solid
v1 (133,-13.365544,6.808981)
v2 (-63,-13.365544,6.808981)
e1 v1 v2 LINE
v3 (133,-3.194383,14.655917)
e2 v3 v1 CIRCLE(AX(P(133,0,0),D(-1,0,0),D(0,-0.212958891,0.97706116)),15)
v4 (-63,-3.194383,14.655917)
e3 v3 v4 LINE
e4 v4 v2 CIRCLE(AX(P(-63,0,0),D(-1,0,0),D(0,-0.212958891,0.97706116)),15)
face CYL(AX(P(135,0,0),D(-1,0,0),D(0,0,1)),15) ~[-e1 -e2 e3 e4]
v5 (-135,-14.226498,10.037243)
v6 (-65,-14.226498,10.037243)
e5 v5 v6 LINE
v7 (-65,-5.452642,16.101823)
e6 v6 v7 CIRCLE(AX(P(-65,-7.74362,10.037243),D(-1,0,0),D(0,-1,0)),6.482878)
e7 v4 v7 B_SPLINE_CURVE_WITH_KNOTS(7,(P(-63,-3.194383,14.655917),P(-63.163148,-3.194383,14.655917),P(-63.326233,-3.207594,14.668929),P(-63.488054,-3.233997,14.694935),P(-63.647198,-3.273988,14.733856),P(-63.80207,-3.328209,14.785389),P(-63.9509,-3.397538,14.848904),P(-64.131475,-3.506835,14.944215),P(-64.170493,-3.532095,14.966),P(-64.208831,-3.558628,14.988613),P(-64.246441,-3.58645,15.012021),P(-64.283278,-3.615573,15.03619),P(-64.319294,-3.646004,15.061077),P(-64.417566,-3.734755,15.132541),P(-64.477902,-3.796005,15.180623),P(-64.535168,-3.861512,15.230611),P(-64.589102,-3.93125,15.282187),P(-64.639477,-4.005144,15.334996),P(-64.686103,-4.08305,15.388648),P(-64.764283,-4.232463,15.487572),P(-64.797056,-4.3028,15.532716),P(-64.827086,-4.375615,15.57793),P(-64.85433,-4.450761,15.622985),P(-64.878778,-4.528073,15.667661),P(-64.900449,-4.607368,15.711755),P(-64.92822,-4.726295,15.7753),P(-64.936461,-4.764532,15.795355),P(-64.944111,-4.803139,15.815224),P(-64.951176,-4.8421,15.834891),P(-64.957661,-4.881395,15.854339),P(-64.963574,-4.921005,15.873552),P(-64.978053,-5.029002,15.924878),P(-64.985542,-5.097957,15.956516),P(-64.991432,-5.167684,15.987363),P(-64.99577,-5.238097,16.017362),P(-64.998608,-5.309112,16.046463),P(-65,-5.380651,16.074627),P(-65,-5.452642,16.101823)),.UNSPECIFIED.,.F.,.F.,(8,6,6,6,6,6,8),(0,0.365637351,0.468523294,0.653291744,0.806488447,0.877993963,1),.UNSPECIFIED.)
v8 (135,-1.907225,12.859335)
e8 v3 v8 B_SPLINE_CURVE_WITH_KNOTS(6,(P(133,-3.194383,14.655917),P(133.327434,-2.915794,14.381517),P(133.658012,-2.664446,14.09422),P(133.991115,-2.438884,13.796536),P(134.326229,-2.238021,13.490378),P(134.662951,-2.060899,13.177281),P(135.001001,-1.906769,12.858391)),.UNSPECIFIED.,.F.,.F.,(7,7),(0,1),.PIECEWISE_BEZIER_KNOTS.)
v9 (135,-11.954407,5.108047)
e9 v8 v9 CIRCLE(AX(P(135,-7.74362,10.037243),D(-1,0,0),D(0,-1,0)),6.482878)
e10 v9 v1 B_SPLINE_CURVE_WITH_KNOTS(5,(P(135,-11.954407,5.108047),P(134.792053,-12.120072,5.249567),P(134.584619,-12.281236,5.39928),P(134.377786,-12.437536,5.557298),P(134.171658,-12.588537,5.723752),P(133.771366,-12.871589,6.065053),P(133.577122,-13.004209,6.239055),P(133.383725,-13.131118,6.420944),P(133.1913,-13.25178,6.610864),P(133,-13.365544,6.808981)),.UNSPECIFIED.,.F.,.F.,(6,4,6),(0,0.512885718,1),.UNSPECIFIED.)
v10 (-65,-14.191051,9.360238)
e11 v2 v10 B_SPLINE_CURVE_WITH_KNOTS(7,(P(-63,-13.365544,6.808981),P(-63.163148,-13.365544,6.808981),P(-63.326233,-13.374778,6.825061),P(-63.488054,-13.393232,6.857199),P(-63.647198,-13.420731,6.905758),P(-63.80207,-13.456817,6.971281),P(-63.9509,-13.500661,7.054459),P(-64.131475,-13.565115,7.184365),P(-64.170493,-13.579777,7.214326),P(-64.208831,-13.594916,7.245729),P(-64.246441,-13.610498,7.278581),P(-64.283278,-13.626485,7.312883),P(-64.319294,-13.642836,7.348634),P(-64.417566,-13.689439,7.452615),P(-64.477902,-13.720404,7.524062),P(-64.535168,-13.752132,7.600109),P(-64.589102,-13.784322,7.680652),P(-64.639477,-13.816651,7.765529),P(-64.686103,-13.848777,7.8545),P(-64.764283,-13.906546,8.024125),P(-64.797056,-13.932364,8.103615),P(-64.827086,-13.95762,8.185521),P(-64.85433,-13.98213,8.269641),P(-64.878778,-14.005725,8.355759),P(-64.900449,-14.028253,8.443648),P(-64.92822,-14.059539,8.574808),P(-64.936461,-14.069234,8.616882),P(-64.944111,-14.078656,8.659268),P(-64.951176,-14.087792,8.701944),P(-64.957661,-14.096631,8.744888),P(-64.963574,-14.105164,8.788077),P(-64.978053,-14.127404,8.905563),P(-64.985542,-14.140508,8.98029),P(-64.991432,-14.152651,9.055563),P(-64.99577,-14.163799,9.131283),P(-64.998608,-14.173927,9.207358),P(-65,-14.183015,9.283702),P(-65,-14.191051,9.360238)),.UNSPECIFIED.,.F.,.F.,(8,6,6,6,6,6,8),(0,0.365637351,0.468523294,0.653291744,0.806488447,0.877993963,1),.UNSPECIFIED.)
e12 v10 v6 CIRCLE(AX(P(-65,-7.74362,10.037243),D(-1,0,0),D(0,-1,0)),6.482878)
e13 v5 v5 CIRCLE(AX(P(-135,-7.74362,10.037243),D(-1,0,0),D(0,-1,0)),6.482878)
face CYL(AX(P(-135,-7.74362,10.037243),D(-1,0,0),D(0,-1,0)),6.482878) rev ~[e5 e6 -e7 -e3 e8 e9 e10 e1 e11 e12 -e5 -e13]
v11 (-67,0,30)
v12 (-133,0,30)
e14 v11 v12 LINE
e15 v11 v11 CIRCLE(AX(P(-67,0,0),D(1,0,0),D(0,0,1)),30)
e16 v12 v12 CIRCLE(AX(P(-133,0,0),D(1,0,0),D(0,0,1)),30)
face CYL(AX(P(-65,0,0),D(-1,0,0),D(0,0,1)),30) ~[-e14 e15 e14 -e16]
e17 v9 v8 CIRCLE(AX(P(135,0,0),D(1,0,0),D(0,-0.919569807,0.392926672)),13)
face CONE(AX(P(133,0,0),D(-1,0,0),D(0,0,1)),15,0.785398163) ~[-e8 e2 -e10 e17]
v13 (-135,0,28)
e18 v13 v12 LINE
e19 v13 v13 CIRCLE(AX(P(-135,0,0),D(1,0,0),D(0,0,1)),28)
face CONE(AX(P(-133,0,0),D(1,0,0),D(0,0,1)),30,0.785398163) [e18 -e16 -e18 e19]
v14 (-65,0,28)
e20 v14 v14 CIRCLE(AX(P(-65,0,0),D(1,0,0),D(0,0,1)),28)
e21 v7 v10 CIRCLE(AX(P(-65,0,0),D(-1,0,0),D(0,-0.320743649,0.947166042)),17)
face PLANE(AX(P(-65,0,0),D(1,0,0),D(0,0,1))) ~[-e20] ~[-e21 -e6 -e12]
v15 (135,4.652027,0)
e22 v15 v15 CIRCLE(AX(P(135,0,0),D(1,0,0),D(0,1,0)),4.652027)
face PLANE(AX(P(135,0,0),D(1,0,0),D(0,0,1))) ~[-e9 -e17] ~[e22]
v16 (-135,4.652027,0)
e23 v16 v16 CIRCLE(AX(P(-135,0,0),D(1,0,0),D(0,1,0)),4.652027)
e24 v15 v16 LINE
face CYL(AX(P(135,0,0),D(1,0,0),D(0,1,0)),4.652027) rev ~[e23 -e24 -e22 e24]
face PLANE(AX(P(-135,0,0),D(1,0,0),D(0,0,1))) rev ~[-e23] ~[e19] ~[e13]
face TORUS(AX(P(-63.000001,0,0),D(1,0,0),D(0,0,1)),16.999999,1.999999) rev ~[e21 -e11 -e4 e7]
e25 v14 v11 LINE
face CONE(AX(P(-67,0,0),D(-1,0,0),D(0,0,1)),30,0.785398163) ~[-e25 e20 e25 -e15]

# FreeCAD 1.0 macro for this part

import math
import FreeCAD as App
import Part
import Sketcher
from FreeCAD import Vector


def edges_at(feature, points):
    """Names of the edges that pass closest to the given points."""
    edges = feature.Shape.Edges
    near = lambda p: min(range(len(edges)), key=lambda i: edges[i].distToShape(Part.Vertex(*p))[0])
    return sorted({f"Edge{near(p) + 1}" for p in points})

doc = App.newDocument("Part")
params = doc.addObject("Spreadsheet::Sheet", "Params")
for row, (alias, value) in enumerate([
    ("sketch1_radius", "1.999999 mm"),
    ("sketch1_width", "270 mm"),
    ("sketch1_width2", "198 mm"),
    ("sketch1_height", "30 mm"),
    ("sketch1_height2", "15 mm"),
    ("revolution_angle", "360 deg"),
    ("chamfer_size", "2 mm"),
    ("chamfer_size2", "2 mm"),
], start=1):
    params.set(f"A{row}", alias)
    params.set(f"B{row}", "=" + value)
    params.setAlias(f"B{row}", alias)

body = doc.addObject("PartDesign::Body", "Body")

# Sketch on XZ plane
sketch1 = body.newObject("Sketcher::SketchObject", "Sketch")
sketch1.AttachmentSupport = (doc.getObject("XZ_Plane"), [""])
sketch1.MapMode = "FlatFace"
sketch1.addGeometry(Part.LineSegment(Vector(-135, 30, 0), Vector(-135, 0, 0)), False)
sketch1.addGeometry(Part.LineSegment(Vector(-135, 0, 0), Vector(135, 0, 0)), False)
sketch1.addGeometry(Part.LineSegment(Vector(135, 0, 0), Vector(135, 15, 0)), False)
sketch1.addGeometry(Part.LineSegment(Vector(135, 15, 0), Vector(-63, 15, 0)), False)
sketch1.addGeometry(Part.ArcOfCircle(Part.Circle(Vector(-63, 17, 0), Vector(0, 0, 1), 2), math.radians(180), math.radians(270)), False)
sketch1.addGeometry(Part.LineSegment(Vector(-65, 17, 0), Vector(-65, 30, 0)), False)
sketch1.addGeometry(Part.LineSegment(Vector(-65, 30, 0), Vector(-135, 30, 0)), False)
sketch1.addConstraint(Sketcher.Constraint("Coincident", 0, 2, 1, 1))
sketch1.addConstraint(Sketcher.Constraint("Coincident", 1, 2, 2, 1))
sketch1.addConstraint(Sketcher.Constraint("Coincident", 2, 2, 3, 1))
sketch1.addConstraint(Sketcher.Constraint("Tangent", 3, 2, 4, 2))
sketch1.addConstraint(Sketcher.Constraint("Tangent", 4, 1, 5, 1))
sketch1.addConstraint(Sketcher.Constraint("Coincident", 5, 2, 6, 1))
sketch1.addConstraint(Sketcher.Constraint("Coincident", 6, 2, 0, 1))
sketch1.addConstraint(Sketcher.Constraint("Vertical", 0))
sketch1.addConstraint(Sketcher.Constraint("Horizontal", 1))
sketch1.addConstraint(Sketcher.Constraint("Vertical", 2))
sketch1.addConstraint(Sketcher.Constraint("Horizontal", 3))
sketch1.addConstraint(Sketcher.Constraint("Vertical", 5))
sketch1.addConstraint(Sketcher.Constraint("Horizontal", 6))
sketch1.addConstraint(Sketcher.Constraint("Symmetric", 0, 2, 1, 2, -1, 1))
sketch1.addConstraint(Sketcher.Constraint("Radius", 4, 1.999999))
sketch1.addConstraint(Sketcher.Constraint("DistanceX", 1, 1, 1, 2, 270.0))
sketch1.addConstraint(Sketcher.Constraint("DistanceX", 3, 2, 3, 1, 198.0))
sketch1.addConstraint(Sketcher.Constraint("DistanceY", 0, 2, 0, 1, 30.0))
sketch1.addConstraint(Sketcher.Constraint("DistanceY", 2, 1, 2, 2, 15.0))
sketch1.setExpression("Constraints[14]", "Params.sketch1_radius")
sketch1.setExpression("Constraints[15]", "Params.sketch1_width")
sketch1.setExpression("Constraints[16]", "Params.sketch1_width2")
sketch1.setExpression("Constraints[17]", "Params.sketch1_height")
sketch1.setExpression("Constraints[18]", "Params.sketch1_height2")
revolution = body.newObject("PartDesign::Revolution", "Revolution")
revolution.Profile = sketch1
revolution.ReferenceAxis = (sketch1, ["H_Axis"])
revolution.setExpression("Angle", "Params.revolution_angle")
doc.recompute()

chamfer = body.newObject("PartDesign::Chamfer", "Chamfer")
chamfer.Base = (revolution, edges_at(revolution, [
    (-65, 0, -30),
    (-135, 0, -30),
    (-100, 0, 30),
    (135, 0, -15),
]))
chamfer.ChamferType = "Two distances"
chamfer.setExpression("Size", "Params.chamfer_size")
chamfer.setExpression("Size2", "Params.chamfer_size2")

# Sketch on YZ plane
sketch2 = body.newObject("Sketcher::SketchObject", "Sketch001")
sketch2.AttachmentSupport = (doc.getObject("YZ_Plane"), [""])
sketch2.MapMode = "FlatFace"
sketch2.AttachmentOffset = App.Placement(Vector(0, 0, 135), App.Rotation())
sketch2.addGeometry(Part.Circle(Vector(0, 0, 0), Vector(0, 0, 1), 4.7), False)
sketch2.addConstraint(Sketcher.Constraint("Coincident", 0, 3, -1, 1))
sketch2.addConstraint(Sketcher.Constraint("Diameter", 0, 9.304054))
pocket1 = body.newObject("PartDesign::Pocket", "Pocket")
pocket1.Profile = sketch2
pocket1.Type = "ThroughAll"

# Sketch on YZ plane
sketch3 = body.newObject("Sketcher::SketchObject", "Sketch002")
sketch3.AttachmentSupport = (doc.getObject("YZ_Plane"), [""])
sketch3.MapMode = "FlatFace"
sketch3.AttachmentOffset = App.Placement(Vector(0, 0, -135), App.Rotation())
sketch3.addGeometry(Part.Circle(Vector(-8, 10, 0), Vector(0, 0, 1), 6), False)
sketch3.addConstraint(Sketcher.Constraint("Diameter", 0, 12.965756))
sketch3.addConstraint(Sketcher.Constraint("DistanceX", 0, 3, -1, 1, 7.74362))
sketch3.addConstraint(Sketcher.Constraint("DistanceY", -1, 1, 0, 3, 10.037243))
pocket2 = body.newObject("PartDesign::Pocket", "Pocket001")
pocket2.Profile = sketch3
pocket2.Type = "ThroughAll"
pocket2.Reversed = True

doc.recompute()
